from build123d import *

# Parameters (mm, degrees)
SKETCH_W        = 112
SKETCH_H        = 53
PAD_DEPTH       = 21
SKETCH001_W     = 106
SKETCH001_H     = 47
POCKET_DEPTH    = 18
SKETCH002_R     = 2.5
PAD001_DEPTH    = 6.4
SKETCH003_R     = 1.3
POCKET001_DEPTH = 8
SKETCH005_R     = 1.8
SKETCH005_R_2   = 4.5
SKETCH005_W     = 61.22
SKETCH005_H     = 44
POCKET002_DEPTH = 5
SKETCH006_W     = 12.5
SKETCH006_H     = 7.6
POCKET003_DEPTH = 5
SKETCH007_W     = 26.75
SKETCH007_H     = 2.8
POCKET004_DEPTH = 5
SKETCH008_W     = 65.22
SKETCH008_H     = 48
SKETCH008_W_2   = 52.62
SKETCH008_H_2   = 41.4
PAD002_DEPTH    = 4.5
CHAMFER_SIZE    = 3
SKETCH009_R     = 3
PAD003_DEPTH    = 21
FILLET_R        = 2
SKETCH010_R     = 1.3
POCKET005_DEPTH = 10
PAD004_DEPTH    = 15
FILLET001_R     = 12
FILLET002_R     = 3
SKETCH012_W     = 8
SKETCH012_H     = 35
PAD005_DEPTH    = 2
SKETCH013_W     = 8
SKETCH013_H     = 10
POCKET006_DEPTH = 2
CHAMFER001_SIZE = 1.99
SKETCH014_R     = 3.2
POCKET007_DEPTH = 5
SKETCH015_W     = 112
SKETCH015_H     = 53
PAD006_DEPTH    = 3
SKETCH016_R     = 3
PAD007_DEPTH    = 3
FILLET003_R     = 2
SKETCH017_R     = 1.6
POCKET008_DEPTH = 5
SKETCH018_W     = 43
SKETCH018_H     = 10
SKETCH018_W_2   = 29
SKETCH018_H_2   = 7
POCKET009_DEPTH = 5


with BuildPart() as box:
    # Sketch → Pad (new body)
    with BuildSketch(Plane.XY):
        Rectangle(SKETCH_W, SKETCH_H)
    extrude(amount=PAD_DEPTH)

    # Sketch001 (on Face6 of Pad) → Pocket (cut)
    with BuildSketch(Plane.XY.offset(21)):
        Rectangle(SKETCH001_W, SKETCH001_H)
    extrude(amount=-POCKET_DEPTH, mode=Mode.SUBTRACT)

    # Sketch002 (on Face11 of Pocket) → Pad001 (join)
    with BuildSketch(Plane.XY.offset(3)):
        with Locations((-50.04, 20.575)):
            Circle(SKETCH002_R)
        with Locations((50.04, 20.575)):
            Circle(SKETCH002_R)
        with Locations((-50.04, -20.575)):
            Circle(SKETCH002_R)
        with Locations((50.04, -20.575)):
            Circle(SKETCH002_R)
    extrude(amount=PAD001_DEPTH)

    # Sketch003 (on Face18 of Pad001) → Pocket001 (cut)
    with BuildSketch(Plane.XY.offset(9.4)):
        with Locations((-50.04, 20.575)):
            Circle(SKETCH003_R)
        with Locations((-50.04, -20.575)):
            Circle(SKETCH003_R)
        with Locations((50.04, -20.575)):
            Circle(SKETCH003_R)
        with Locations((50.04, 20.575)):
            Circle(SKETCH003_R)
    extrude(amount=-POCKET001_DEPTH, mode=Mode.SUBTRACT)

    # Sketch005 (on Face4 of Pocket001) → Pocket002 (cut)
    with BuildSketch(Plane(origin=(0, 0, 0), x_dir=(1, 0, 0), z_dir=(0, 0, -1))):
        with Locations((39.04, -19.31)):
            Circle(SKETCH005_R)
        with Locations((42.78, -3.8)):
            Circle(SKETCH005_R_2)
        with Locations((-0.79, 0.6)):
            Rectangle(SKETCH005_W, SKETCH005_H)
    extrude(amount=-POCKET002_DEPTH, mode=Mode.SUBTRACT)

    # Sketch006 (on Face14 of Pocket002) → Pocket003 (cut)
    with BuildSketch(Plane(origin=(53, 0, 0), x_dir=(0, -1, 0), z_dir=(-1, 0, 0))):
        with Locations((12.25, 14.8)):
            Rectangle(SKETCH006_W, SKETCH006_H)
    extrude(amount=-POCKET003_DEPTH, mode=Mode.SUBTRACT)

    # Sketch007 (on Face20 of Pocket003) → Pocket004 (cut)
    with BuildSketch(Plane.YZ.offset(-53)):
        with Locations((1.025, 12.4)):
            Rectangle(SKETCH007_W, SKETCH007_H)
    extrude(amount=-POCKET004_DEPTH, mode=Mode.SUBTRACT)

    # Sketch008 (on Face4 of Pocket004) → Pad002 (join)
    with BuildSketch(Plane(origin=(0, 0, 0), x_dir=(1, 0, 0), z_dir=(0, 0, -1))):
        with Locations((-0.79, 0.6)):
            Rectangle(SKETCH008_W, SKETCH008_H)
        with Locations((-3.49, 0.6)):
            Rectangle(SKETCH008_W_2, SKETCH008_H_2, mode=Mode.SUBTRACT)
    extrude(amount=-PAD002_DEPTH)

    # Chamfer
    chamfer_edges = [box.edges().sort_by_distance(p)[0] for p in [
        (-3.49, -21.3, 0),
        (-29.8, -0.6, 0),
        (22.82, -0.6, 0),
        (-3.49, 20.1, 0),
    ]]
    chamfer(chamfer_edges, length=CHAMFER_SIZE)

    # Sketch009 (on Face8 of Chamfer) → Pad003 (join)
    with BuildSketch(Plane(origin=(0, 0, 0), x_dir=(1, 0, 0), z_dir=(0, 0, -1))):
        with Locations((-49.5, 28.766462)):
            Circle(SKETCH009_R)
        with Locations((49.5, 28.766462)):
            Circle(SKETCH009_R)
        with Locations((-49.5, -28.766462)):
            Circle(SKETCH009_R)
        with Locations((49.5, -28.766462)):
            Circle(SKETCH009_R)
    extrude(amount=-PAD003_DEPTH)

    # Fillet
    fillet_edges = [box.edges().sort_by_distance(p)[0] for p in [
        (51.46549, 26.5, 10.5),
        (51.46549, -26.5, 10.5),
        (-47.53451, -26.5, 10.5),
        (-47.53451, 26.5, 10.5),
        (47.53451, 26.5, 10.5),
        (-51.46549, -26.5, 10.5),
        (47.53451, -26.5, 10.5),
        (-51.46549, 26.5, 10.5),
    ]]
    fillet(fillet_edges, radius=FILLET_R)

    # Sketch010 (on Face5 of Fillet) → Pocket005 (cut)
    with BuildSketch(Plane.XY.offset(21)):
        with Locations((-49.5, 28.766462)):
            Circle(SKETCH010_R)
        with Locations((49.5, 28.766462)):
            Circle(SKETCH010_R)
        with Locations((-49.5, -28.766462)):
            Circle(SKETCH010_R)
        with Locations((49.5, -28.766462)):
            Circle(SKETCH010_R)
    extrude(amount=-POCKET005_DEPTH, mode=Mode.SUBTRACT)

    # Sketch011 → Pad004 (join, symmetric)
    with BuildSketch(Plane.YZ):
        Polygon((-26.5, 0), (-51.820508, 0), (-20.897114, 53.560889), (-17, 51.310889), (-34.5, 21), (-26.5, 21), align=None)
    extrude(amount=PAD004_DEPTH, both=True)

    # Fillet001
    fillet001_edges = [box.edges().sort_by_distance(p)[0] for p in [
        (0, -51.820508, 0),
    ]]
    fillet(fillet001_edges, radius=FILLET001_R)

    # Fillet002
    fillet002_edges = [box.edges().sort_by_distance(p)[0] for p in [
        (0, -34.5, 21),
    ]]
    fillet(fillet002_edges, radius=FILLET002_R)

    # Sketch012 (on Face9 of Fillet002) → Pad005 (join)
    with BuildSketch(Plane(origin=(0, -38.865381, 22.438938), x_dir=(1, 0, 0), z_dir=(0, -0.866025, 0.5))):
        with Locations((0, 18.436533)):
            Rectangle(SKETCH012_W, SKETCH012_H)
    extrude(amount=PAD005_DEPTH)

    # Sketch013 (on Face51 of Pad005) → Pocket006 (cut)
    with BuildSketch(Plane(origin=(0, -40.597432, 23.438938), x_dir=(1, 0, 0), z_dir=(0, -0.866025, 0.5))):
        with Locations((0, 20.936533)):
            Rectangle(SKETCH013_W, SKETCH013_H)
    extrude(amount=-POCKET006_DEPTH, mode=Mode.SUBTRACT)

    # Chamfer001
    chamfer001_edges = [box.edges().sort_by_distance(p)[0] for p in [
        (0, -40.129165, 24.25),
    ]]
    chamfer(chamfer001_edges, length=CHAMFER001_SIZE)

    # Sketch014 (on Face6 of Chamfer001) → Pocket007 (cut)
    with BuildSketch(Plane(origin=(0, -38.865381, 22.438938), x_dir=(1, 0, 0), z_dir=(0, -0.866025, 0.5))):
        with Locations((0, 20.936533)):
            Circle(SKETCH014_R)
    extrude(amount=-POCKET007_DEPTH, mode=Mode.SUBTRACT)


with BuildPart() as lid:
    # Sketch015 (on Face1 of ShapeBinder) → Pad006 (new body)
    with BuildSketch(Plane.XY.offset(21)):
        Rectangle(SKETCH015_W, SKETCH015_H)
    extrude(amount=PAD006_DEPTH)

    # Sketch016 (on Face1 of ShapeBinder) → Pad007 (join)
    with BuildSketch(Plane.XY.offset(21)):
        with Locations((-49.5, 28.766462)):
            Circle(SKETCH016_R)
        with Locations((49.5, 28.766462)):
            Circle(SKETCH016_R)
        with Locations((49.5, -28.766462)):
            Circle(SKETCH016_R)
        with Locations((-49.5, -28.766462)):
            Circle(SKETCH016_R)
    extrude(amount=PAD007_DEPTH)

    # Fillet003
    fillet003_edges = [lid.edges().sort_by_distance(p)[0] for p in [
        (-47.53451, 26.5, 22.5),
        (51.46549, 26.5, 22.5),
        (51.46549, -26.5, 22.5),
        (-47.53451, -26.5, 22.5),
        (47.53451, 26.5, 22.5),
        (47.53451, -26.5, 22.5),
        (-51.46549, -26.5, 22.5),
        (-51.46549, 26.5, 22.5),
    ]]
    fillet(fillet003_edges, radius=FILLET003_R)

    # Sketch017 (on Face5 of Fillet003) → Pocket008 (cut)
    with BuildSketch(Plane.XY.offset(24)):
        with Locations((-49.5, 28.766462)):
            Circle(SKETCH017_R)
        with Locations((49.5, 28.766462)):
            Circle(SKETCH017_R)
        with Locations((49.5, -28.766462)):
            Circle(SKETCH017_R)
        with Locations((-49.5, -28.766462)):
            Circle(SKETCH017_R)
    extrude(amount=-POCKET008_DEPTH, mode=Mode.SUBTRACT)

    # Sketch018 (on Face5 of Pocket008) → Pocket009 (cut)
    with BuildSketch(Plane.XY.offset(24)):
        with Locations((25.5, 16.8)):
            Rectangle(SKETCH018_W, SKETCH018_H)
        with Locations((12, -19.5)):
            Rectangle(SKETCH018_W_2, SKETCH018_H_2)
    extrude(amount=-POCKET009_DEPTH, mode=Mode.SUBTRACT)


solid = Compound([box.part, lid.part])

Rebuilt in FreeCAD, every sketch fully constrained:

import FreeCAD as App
import Part
import Sketcher

V = App.Vector
Q = App.Units.Quantity


def edges_at(feature, points):
    """Names of the edges that pass closest to the given points."""
    edges = feature.Shape.Edges
    near = lambda p: min(range(len(edges)), key=lambda i: edges[i].distToShape(Part.Vertex(*p))[0])
    return sorted({f"Edge{near(p) + 1}" for p in points})


def add_polygon(sketch, points):
    """Adds a closed chain of lines whose ends are joined by coincident constraints."""
    first, n = sketch.GeometryCount, len(points)
    for a, b in zip(points, points[1:] + points[:1]):
        sketch.addGeometry(Part.LineSegment(App.Vector(*a, 0), App.Vector(*b, 0)), False)
    for i in range(n):
        sketch.addConstraint(Sketcher.Constraint("Coincident", first + i, 2, first + (i + 1) % n, 1))

doc = App.newDocument("Part")
body = doc.addObject("PartDesign::Body", "Body")

sketch1 = body.newObject("Sketcher::SketchObject", "Sketch")
sketch1.AttachmentSupport = (doc.getObject("XY_Plane"), [""])
sketch1.MapMode = "FlatFace"
add_polygon(sketch1, [(-56, 26), (-56, -26), (56, -26), (56, 26)])
sketch1.addConstraint([
    Sketcher.Constraint("Vertical", 0),
    Sketcher.Constraint("Horizontal", 1),
    Sketcher.Constraint("Vertical", 2),
    Sketcher.Constraint("Horizontal", 3),
    Sketcher.Constraint("Symmetric", 0, 2, 2, 2, -1, 1),
    Sketcher.Constraint("DistanceX", 1, 1, 1, 2, 112.0),
    Sketcher.Constraint("DistanceY", 0, 2, 0, 1, 53.0),
])
pad1 = body.newObject("PartDesign::Pad", "Pad")
pad1.Profile = sketch1
pad1.Length = 21

sketch2 = body.newObject("Sketcher::SketchObject", "Sketch001")
sketch2.AttachmentSupport = (doc.getObject("XY_Plane"), [""])
sketch2.MapMode = "FlatFace"
sketch2.AttachmentOffset = App.Placement(V(0, 0, 21), App.Rotation())
add_polygon(sketch2, [(-53, 24), (-53, -24), (53, -24), (53, 24)])
sketch2.addConstraint([
    Sketcher.Constraint("Vertical", 0),
    Sketcher.Constraint("Horizontal", 1),
    Sketcher.Constraint("Vertical", 2),
    Sketcher.Constraint("Horizontal", 3),
    Sketcher.Constraint("Symmetric", 0, 2, 2, 2, -1, 1),
    Sketcher.Constraint("DistanceX", 1, 1, 1, 2, 106.0),
    Sketcher.Constraint("DistanceY", 0, 2, 0, 1, 47.0),
])
pocket1 = body.newObject("PartDesign::Pocket", "Pocket")
pocket1.Profile = sketch2
pocket1.Length = 18

sketch3 = body.newObject("Sketcher::SketchObject", "Sketch002")
sketch3.AttachmentSupport = (doc.getObject("XY_Plane"), [""])
sketch3.MapMode = "FlatFace"
sketch3.AttachmentOffset = App.Placement(V(0, 0, 3), App.Rotation())
sketch3.addGeometry([
    Part.Circle(V(-50, 20.6, 0), V(0, 0, 1), 2.5),
    Part.Circle(V(50, 20.6, 0), V(0, 0, 1), 2.5),
    Part.Circle(V(-50, -20.6, 0), V(0, 0, 1), 2.5),
    Part.Circle(V(50, -20.6, 0), V(0, 0, 1), 2.5),
], False)
sketch3.addConstraint([
    Sketcher.Constraint("Equal", 0, 1),
    Sketcher.Constraint("Equal", 1, 2),
    Sketcher.Constraint("Equal", 2, 3),
    Sketcher.Constraint("Symmetric", 1, 3, 2, 3, -1, 1),
    Sketcher.Constraint("Symmetric", 0, 3, 3, 3, -1, 1),
    Sketcher.Constraint("Symmetric", 0, 3, 1, 3, -2),
    Sketcher.Constraint("Diameter", 0, 5.0),
    Sketcher.Constraint("DistanceX", 0, 3, -1, 1, 50.04),
    Sketcher.Constraint("DistanceY", 2, 3, 0, 3, 41.15),
])
pad2 = body.newObject("PartDesign::Pad", "Pad001")
pad2.Profile = sketch3
pad2.Length = 6.4

sketch4 = body.newObject("Sketcher::SketchObject", "Sketch003")
sketch4.AttachmentSupport = (doc.getObject("XY_Plane"), [""])
sketch4.MapMode = "FlatFace"
sketch4.AttachmentOffset = App.Placement(V(0, 0, 9.4), App.Rotation())
sketch4.addGeometry([
    Part.Circle(V(-50, 20.6, 0), V(0, 0, 1), 1.3),
    Part.Circle(V(-50, -20.6, 0), V(0, 0, 1), 1.3),
    Part.Circle(V(50, -20.6, 0), V(0, 0, 1), 1.3),
    Part.Circle(V(50, 20.6, 0), V(0, 0, 1), 1.3),
], False)
sketch4.addConstraint([
    Sketcher.Constraint("Equal", 0, 1),
    Sketcher.Constraint("Equal", 1, 2),
    Sketcher.Constraint("Equal", 2, 3),
    Sketcher.Constraint("Symmetric", 0, 3, 2, 3, -1, 1),
    Sketcher.Constraint("Symmetric", 1, 3, 3, 3, -1, 1),
    Sketcher.Constraint("Symmetric", 1, 3, 2, 3, -2),
    Sketcher.Constraint("Diameter", 0, 2.6),
    Sketcher.Constraint("DistanceX", 0, 3, -1, 1, 50.04),
    Sketcher.Constraint("DistanceY", 1, 3, 0, 3, 41.15),
])
pocket2 = body.newObject("PartDesign::Pocket", "Pocket001")
pocket2.Profile = sketch4
pocket2.Length = 8

sketch5 = body.newObject("Sketcher::SketchObject", "Sketch004")
sketch5.AttachmentSupport = (doc.getObject("XY_Plane"), [""])
sketch5.MapMode = "FlatFace"
sketch5.addGeometry(Part.Circle(V(39, 19.3, 0), V(0, 0, 1), 1.8), False)
sketch5.addGeometry(Part.Circle(V(42.8, 3.8, 0), V(0, 0, 1), 4.5), False)
add_polygon(sketch5, [(-31.4, -22.6), (-31.4, 21.4), (29.8, 21.4), (29.8, -22.6)])
sketch5.addConstraint([
    Sketcher.Constraint("Vertical", 2),
    Sketcher.Constraint("Horizontal", 3),
    Sketcher.Constraint("Vertical", 4),
    Sketcher.Constraint("Horizontal", 5),
    Sketcher.Constraint("Diameter", 1, 9.0),
    Sketcher.Constraint("Diameter", 0, 3.6),
    Sketcher.Constraint("DistanceY", 2, 1, 2, 2, 44.0),
    Sketcher.Constraint("DistanceX", 3, 1, 3, 2, 61.22),
    Sketcher.Constraint("DistanceY", -1, 1, 1, 3, 3.8),
    Sketcher.Constraint("DistanceX", 2, 2, -1, 1, 31.4),
    Sketcher.Constraint("DistanceY", -1, 1, 2, 2, 21.4),
    Sketcher.Constraint("DistanceX", -1, 1, 0, 3, 39.04),
    Sketcher.Constraint("DistanceY", -1, 1, 0, 3, 19.31),
    Sketcher.Constraint("DistanceX", -1, 1, 1, 3, 42.78),
])
pocket3 = body.newObject("PartDesign::Pocket", "Pocket002")
pocket3.Profile = sketch5
pocket3.Length = 5
pocket3.Reversed = True

sketch6 = body.newObject("Sketcher::SketchObject", "Sketch005")
sketch6.AttachmentSupport = (doc.getObject("YZ_Plane"), [""])
sketch6.MapMode = "FlatFace"
sketch6.AttachmentOffset = App.Placement(V(0, 0, 53), App.Rotation())
add_polygon(sketch6, [(-6, 19), (-6, 11), (-18, 11), (-18, 19)])
sketch6.addConstraint([
    Sketcher.Constraint("Vertical", 0),
    Sketcher.Constraint("Horizontal", 1),
    Sketcher.Constraint("Vertical", 2),
    Sketcher.Constraint("Horizontal", 3),
    Sketcher.Constraint("DistanceX", 1, 2, 1, 1, 12.5),
    Sketcher.Constraint("DistanceY", 0, 2, 0, 1, 7.6),
    Sketcher.Constraint("DistanceX", 0, 2, -1, 1, 6.0),
    Sketcher.Constraint("DistanceY", -1, 1, 0, 2, 11.0),
])
pocket4 = body.newObject("PartDesign::Pocket", "Pocket003")
pocket4.Profile = sketch6
pocket4.Length = 5
pocket4.Reversed = True

sketch7 = body.newObject("Sketcher::SketchObject", "Sketch006")
sketch7.AttachmentSupport = (doc.getObject("YZ_Plane"), [""])
sketch7.MapMode = "FlatFace"
sketch7.AttachmentOffset = App.Placement(V(0, 0, -53), App.Rotation())
add_polygon(sketch7, [(-12.3, 13.8), (-12.3, 11), (14.4, 11), (14.4, 13.8)])
sketch7.addConstraint([
    Sketcher.Constraint("Vertical", 0),
    Sketcher.Constraint("Horizontal", 1),
    Sketcher.Constraint("Vertical", 2),
    Sketcher.Constraint("Horizontal", 3),
    Sketcher.Constraint("DistanceY", 0, 2, 0, 1, 2.8),
    Sketcher.Constraint("DistanceY", -1, 1, 0, 2, 11.0),
    Sketcher.Constraint("DistanceX", 1, 1, 1, 2, 26.75),
    Sketcher.Constraint("DistanceX", -1, 1, 1, 2, 14.4),
])
pocket5 = body.newObject("PartDesign::Pocket", "Pocket004")
pocket5.Profile = sketch7
pocket5.Length = 5

sketch8 = body.newObject("Sketcher::SketchObject", "Sketch007")
sketch8.AttachmentSupport = (doc.getObject("XY_Plane"), [""])
sketch8.MapMode = "FlatFace"
add_polygon(sketch8, [(-33, -25), (-33, 23), (32, 23), (32, -25)])
add_polygon(sketch8, [(23, 20), (-30, 20), (-30, -21), (23, -21)])
sketch8.addConstraint([
    Sketcher.Constraint("Vertical", 0),
    Sketcher.Constraint("Horizontal", 1),
    Sketcher.Constraint("Vertical", 2),
    Sketcher.Constraint("Horizontal", 3),
    Sketcher.Constraint("Horizontal", 4),
    Sketcher.Constraint("Vertical", 5),
    Sketcher.Constraint("Horizontal", 6),
    Sketcher.Constraint("Vertical", 7),
    Sketcher.Constraint("DistanceY", 0, 1, 0, 2, 48.0),
    Sketcher.Constraint("DistanceY", 5, 2, 5, 1, 41.4),
    Sketcher.Constraint("DistanceX", 6, 2, 2, 2, 9.0),
    Sketcher.Constraint("DistanceX", 1, 1, 1, 2, 65.22),
    Sketcher.Constraint("DistanceX", 4, 2, 4, 1, 52.62),
    Sketcher.Constraint("DistanceX", 0, 2, -1, 1, 33.4),
    Sketcher.Constraint("DistanceY", -1, 1, 0, 2, 23.4),
    Sketcher.Constraint("DistanceY", -1, 1, 4, 2, 20.1),
])
pad3 = body.newObject("PartDesign::Pad", "Pad002")
pad3.Profile = sketch8
pad3.Length = 4.5
doc.recompute()

chamfer = body.newObject("PartDesign::Chamfer", "Chamfer")
chamfer.Base = (pad3, edges_at(pad3, [
    (-3.49, -21.3, 0),
    (-29.8, -0.6, 0),
    (22.82, -0.6, 0),
    (-3.49, 20.1, 0),
]))
chamfer.Size = 3

sketch9 = body.newObject("Sketcher::SketchObject", "Sketch008")
sketch9.AttachmentSupport = (doc.getObject("XY_Plane"), [""])
sketch9.MapMode = "FlatFace"
sketch9.addGeometry([
    Part.Circle(V(-49.5, -28.8, 0), V(0, 0, 1), 3),
    Part.Circle(V(49.5, -28.8, 0), V(0, 0, 1), 3),
    Part.Circle(V(-49.5, 28.8, 0), V(0, 0, 1), 3),
    Part.Circle(V(49.5, 28.8, 0), V(0, 0, 1), 3),
], False)
sketch9.addConstraint([
    Sketcher.Constraint("Equal", 0, 1),
    Sketcher.Constraint("Equal", 1, 2),
    Sketcher.Constraint("Equal", 2, 3),
    Sketcher.Constraint("Symmetric", 1, 3, 2, 3, -1, 1),
    Sketcher.Constraint("Symmetric", 0, 3, 3, 3, -1, 1),
    Sketcher.Constraint("Symmetric", 0, 3, 1, 3, -2),
    Sketcher.Constraint("Diameter", 0, 6.0),
    Sketcher.Constraint("DistanceX", 0, 3, 1, 3, 99.0),
    Sketcher.Constraint("DistanceY", 0, 3, -1, 1, 28.766462),
])
pad4 = body.newObject("PartDesign::Pad", "Pad003")
pad4.Profile = sketch9
pad4.Length = 21
doc.recompute()

fillet = body.newObject("PartDesign::Fillet", "Fillet")
fillet.Base = (pad4, edges_at(pad4, [
    (51.465, 26.5, 10.5),
    (51.465, -26.5, 10.5),
    (-47.535, -26.5, 10.5),
    (-47.535, 26.5, 10.5),
    (47.535, 26.5, 10.5),
    (-51.465, -26.5, 10.5),
    (47.535, -26.5, 10.5),
    (-51.465, 26.5, 10.5),
]))
fillet.Radius = 2

sketch10 = body.newObject("Sketcher::SketchObject", "Sketch009")
sketch10.AttachmentSupport = (doc.getObject("XY_Plane"), [""])
sketch10.MapMode = "FlatFace"
sketch10.AttachmentOffset = App.Placement(V(0, 0, 21), App.Rotation())
sketch10.addGeometry([
    Part.Circle(V(-49.5, 28.8, 0), V(0, 0, 1), 1.3),
    Part.Circle(V(49.5, 28.8, 0), V(0, 0, 1), 1.3),
    Part.Circle(V(-49.5, -28.8, 0), V(0, 0, 1), 1.3),
    Part.Circle(V(49.5, -28.8, 0), V(0, 0, 1), 1.3),
], False)
sketch10.addConstraint([
    Sketcher.Constraint("Equal", 0, 1),
    Sketcher.Constraint("Equal", 1, 2),
    Sketcher.Constraint("Equal", 2, 3),
    Sketcher.Constraint("Symmetric", 1, 3, 2, 3, -1, 1),
    Sketcher.Constraint("Symmetric", 0, 3, 3, 3, -1, 1),
    Sketcher.Constraint("Symmetric", 0, 3, 1, 3, -2),
    Sketcher.Constraint("Diameter", 0, 2.6),
    Sketcher.Constraint("DistanceX", 0, 3, 1, 3, 99.0),
    Sketcher.Constraint("DistanceY", -1, 1, 0, 3, 28.766462),
])
pocket6 = body.newObject("PartDesign::Pocket", "Pocket005")
pocket6.Profile = sketch10
pocket6.Length = 10

sketch11 = body.newObject("Sketcher::SketchObject", "Sketch010")
sketch11.AttachmentSupport = (doc.getObject("YZ_Plane"), [""])
sketch11.MapMode = "FlatFace"
add_polygon(sketch11, [(-51.8, 0), (-26.5, 0), (-26.5, 21), (-34.5, 21), (-17, 51.3), (-20.9, 53.6)])
sketch11.addConstraint([
    Sketcher.Constraint("Horizontal", 0),
    Sketcher.Constraint("Vertical", 1),
    Sketcher.Constraint("Horizontal", 2),
    Sketcher.Constraint("PointOnObject", 0, 2, -1),
    Sketcher.Constraint("Perpendicular", 3, 4),
    Sketcher.Constraint("Perpendicular", 4, 5),
    Sketcher.Constraint("DistanceX", 2, 2, 2, 1, 8.0),
    Sketcher.Constraint("DistanceY", 1, 1, 1, 2, 21.0),
    Sketcher.Constraint("Angle", 3, Q("60 deg")),
    Sketcher.Constraint("Distance", 3, 35.0),
    Sketcher.Constraint("DistanceX", 3, 2, -1, 1, 17.0),
    Sketcher.Constraint("Distance", 4, 4.5),
])
pad5 = body.newObject("PartDesign::Pad", "Pad004")
pad5.Profile = sketch11
pad5.Length = 30
pad5.Midplane = True
doc.recompute()

fillet2 = body.newObject("PartDesign::Fillet", "Fillet001")
fillet2.Base = (pad5, edges_at(pad5, [(0, -51.821, 0)]))
fillet2.Radius = 12
doc.recompute()

fillet3 = body.newObject("PartDesign::Fillet", "Fillet002")
fillet3.Base = (fillet2, edges_at(fillet2, [(0, -34.5, 21)]))
fillet3.Radius = 3

sketch12 = body.newObject("Sketcher::SketchObject", "Sketch011")
sketch12.Placement = App.Placement(V(0, -38.865381, 22.438938), App.Rotation(V(1, 0, 0), V(0, 0.500000175, 0.866025303), V(0, -0.866025303, 0.500000175), "ZXY"))
add_polygon(sketch12, [(-4, 36), (-4, 1), (4, 1), (4, 36)])
sketch12.addConstraint([
    Sketcher.Constraint("Vertical", 0),
    Sketcher.Constraint("Horizontal", 1),
    Sketcher.Constraint("Vertical", 2),
    Sketcher.Constraint("Horizontal", 3),
    Sketcher.Constraint("DistanceX", 1, 1, 1, 2, 8.0),
    Sketcher.Constraint("DistanceY", 0, 2, 0, 1, 35.0),
    Sketcher.Constraint("DistanceX", 0, 2, -1, 1, 4.0),
    Sketcher.Constraint("DistanceY", -1, 1, 0, 2, 0.936533),
])
pad6 = body.newObject("PartDesign::Pad", "Pad005")
pad6.Profile = sketch12
pad6.Length = 2

sketch13 = body.newObject("Sketcher::SketchObject", "Sketch012")
sketch13.Placement = App.Placement(V(0, -40.597432, 23.438938), App.Rotation(V(1, 0, 0), V(0, 0.500000175, 0.866025303), V(0, -0.866025303, 0.500000175), "ZXY"))
add_polygon(sketch13, [(-4, 26), (-4, 16), (4, 16), (4, 26)])
sketch13.addConstraint([
    Sketcher.Constraint("Vertical", 0),
    Sketcher.Constraint("Horizontal", 1),
    Sketcher.Constraint("Vertical", 2),
    Sketcher.Constraint("Horizontal", 3),
    Sketcher.Constraint("DistanceX", 1, 1, 1, 2, 8.0),
    Sketcher.Constraint("DistanceY", 0, 2, 0, 1, 10.0),
    Sketcher.Constraint("DistanceX", 0, 2, -1, 1, 4.0),
    Sketcher.Constraint("DistanceY", -1, 1, 0, 2, 15.936533),
])
pocket7 = body.newObject("PartDesign::Pocket", "Pocket006")
pocket7.Profile = sketch13
pocket7.Length = 2
doc.recompute()

chamfer2 = body.newObject("PartDesign::Chamfer", "Chamfer001")
chamfer2.Base = (pocket7, edges_at(pocket7, [(0, -40.129, 24.25)]))
chamfer2.Size = 1.99

sketch14 = body.newObject("Sketcher::SketchObject", "Sketch013")
sketch14.Placement = App.Placement(V(0, -38.865381, 22.438938), App.Rotation(V(1, 0, 0), V(0, 0.500000175, 0.866025303), V(0, -0.866025303, 0.500000175), "ZXY"))
sketch14.addGeometry(Part.Circle(V(0, 20.9, 0), V(0, 0, 1), 3.2), False)
sketch14.addConstraint([
    Sketcher.Constraint("PointOnObject", 0, 3, -2),
    Sketcher.Constraint("Diameter", 0, 6.4),
    Sketcher.Constraint("DistanceY", -1, 1, 0, 3, 20.936533),
])
pocket8 = body.newObject("PartDesign::Pocket", "Pocket007")
pocket8.Profile = sketch14
pocket8.Length = 5
body2 = doc.addObject("PartDesign::Body", "Body001")

sketch15 = body2.newObject("Sketcher::SketchObject", "Sketch014")
sketch15.AttachmentSupport = (doc.getObject("XY_Plane001"), [""])
sketch15.MapMode = "FlatFace"
sketch15.AttachmentOffset = App.Placement(V(0, 0, 21), App.Rotation())
add_polygon(sketch15, [(-56, 26), (-56, -26), (56, -26), (56, 26)])
sketch15.addConstraint([
    Sketcher.Constraint("Vertical", 0),
    Sketcher.Constraint("Horizontal", 1),
    Sketcher.Constraint("Vertical", 2),
    Sketcher.Constraint("Horizontal", 3),
    Sketcher.Constraint("Symmetric", 0, 2, 2, 2, -1, 1),
    Sketcher.Constraint("DistanceX", 1, 1, 1, 2, 112.0),
    Sketcher.Constraint("DistanceY", 0, 2, 0, 1, 53.0),
])
pad7 = body2.newObject("PartDesign::Pad", "Pad006")
pad7.Profile = sketch15
pad7.Length = 3

sketch16 = body2.newObject("Sketcher::SketchObject", "Sketch015")
sketch16.AttachmentSupport = (doc.getObject("XY_Plane001"), [""])
sketch16.MapMode = "FlatFace"
sketch16.AttachmentOffset = App.Placement(V(0, 0, 21), App.Rotation())
sketch16.addGeometry([
    Part.Circle(V(-49.5, 28.8, 0), V(0, 0, 1), 3),
    Part.Circle(V(49.5, 28.8, 0), V(0, 0, 1), 3),
    Part.Circle(V(49.5, -28.8, 0), V(0, 0, 1), 3),
    Part.Circle(V(-49.5, -28.8, 0), V(0, 0, 1), 3),
], False)
sketch16.addConstraint([
    Sketcher.Constraint("Equal", 0, 1),
    Sketcher.Constraint("Equal", 1, 2),
    Sketcher.Constraint("Equal", 2, 3),
    Sketcher.Constraint("Symmetric", 0, 3, 2, 3, -1, 1),
    Sketcher.Constraint("Symmetric", 1, 3, 3, 3, -1, 1),
    Sketcher.Constraint("Symmetric", 0, 3, 1, 3, -2),
    Sketcher.Constraint("Diameter", 0, 6.0),
    Sketcher.Constraint("DistanceX", 0, 3, 1, 3, 99.0),
    Sketcher.Constraint("DistanceY", -1, 1, 0, 3, 28.766462),
])
pad8 = body2.newObject("PartDesign::Pad", "Pad007")
pad8.Profile = sketch16
pad8.Length = 3
doc.recompute()

fillet4 = body2.newObject("PartDesign::Fillet", "Fillet003")
fillet4.Base = (pad8, edges_at(pad8, [
    (-47.535, 26.5, 22.5),
    (51.465, 26.5, 22.5),
    (51.465, -26.5, 22.5),
    (-47.535, -26.5, 22.5),
    (47.535, 26.5, 22.5),
    (47.535, -26.5, 22.5),
    (-51.465, -26.5, 22.5),
    (-51.465, 26.5, 22.5),
]))
fillet4.Radius = 2

sketch17 = body2.newObject("Sketcher::SketchObject", "Sketch016")
sketch17.AttachmentSupport = (doc.getObject("XY_Plane001"), [""])
sketch17.MapMode = "FlatFace"
sketch17.AttachmentOffset = App.Placement(V(0, 0, 24), App.Rotation())
sketch17.addGeometry([
    Part.Circle(V(-49.5, 28.8, 0), V(0, 0, 1), 1.6),
    Part.Circle(V(49.5, 28.8, 0), V(0, 0, 1), 1.6),
    Part.Circle(V(49.5, -28.8, 0), V(0, 0, 1), 1.6),
    Part.Circle(V(-49.5, -28.8, 0), V(0, 0, 1), 1.6),
], False)
sketch17.addConstraint([
    Sketcher.Constraint("Equal", 0, 1),
    Sketcher.Constraint("Equal", 1, 2),
    Sketcher.Constraint("Equal", 2, 3),
    Sketcher.Constraint("Symmetric", 0, 3, 2, 3, -1, 1),
    Sketcher.Constraint("Symmetric", 1, 3, 3, 3, -1, 1),
    Sketcher.Constraint("Symmetric", 0, 3, 1, 3, -2),
    Sketcher.Constraint("Diameter", 0, 3.2),
    Sketcher.Constraint("DistanceX", 0, 3, 1, 3, 99.0),
    Sketcher.Constraint("DistanceY", -1, 1, 0, 3, 28.766462),
])
pocket9 = body2.newObject("PartDesign::Pocket", "Pocket008")
pocket9.Profile = sketch17
pocket9.Length = 5

sketch18 = body2.newObject("Sketcher::SketchObject", "Sketch017")
sketch18.AttachmentSupport = (doc.getObject("XY_Plane001"), [""])
sketch18.MapMode = "FlatFace"
sketch18.AttachmentOffset = App.Placement(V(0, 0, 24), App.Rotation())
add_polygon(sketch18, [(4, 22), (4, 12), (47, 12), (47, 22)])
add_polygon(sketch18, [(-2, -16), (-2, -23), (26, -23), (26, -16)])
sketch18.addConstraint([
    Sketcher.Constraint("Vertical", 0),
    Sketcher.Constraint("Horizontal", 1),
    Sketcher.Constraint("Vertical", 2),
    Sketcher.Constraint("Horizontal", 3),
    Sketcher.Constraint("Vertical", 4),
    Sketcher.Constraint("Horizontal", 5),
    Sketcher.Constraint("Vertical", 6),
    Sketcher.Constraint("Horizontal", 7),
    Sketcher.Constraint("DistanceX", 1, 1, 1, 2, 43.0),
    Sketcher.Constraint("DistanceX", 5, 1, 5, 2, 29.0),
    Sketcher.Constraint("DistanceY", 0, 2, 0, 1, 10.0),
    Sketcher.Constraint("DistanceY", 4, 2, 4, 1, 7.0),
    Sketcher.Constraint("DistanceX", -1, 1, 0, 2, 4.0),
    Sketcher.Constraint("DistanceY", 4, 2, -1, 1, 23.0),
    Sketcher.Constraint("DistanceY", -1, 1, 0, 2, 11.8),
    Sketcher.Constraint("DistanceX", 4, 2, -1, 1, 2.5),
])
pocket10 = body2.newObject("PartDesign::Pocket", "Pocket009")
pocket10.Profile = sketch18
pocket10.Length = 5

doc.recompute()
